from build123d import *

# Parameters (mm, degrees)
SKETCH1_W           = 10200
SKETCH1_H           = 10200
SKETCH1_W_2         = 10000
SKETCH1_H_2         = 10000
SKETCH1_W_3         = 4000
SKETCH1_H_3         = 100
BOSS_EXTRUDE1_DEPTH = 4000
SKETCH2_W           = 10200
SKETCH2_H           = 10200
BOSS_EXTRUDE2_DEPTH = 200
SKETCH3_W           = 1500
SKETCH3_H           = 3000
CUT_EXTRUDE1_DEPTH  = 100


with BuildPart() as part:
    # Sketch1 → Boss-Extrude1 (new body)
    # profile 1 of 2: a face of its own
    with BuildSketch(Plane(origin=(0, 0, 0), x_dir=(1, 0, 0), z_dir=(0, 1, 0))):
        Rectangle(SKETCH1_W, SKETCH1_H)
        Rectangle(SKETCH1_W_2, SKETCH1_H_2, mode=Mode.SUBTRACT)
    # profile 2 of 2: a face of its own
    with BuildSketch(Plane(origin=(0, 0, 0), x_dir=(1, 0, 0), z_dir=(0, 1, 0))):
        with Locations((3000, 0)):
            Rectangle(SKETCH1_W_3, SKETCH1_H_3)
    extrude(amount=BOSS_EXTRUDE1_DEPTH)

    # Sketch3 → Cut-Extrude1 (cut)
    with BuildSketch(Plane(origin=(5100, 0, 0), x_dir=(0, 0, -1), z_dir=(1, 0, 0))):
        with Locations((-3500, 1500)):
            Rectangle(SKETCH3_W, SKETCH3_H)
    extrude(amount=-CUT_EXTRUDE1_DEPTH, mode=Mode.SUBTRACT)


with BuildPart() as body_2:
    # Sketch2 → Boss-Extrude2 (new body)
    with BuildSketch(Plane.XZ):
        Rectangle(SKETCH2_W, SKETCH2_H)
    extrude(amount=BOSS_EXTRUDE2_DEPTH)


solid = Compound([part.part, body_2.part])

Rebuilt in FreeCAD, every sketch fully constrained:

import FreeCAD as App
import Part
import Sketcher
from FreeCAD import Vector
Q = App.Units.Quantity


def add_polygon(sketch, points):
    """Adds a closed chain of lines whose ends are joined by coincident constraints."""
    first, n = sketch.GeometryCount, len(points)
    for a, b in zip(points, points[1:] + points[:1]):
        sketch.addGeometry(Part.LineSegment(App.Vector(*a, 0), App.Vector(*b, 0)), False)
    for i in range(n):
        sketch.addConstraint(Sketcher.Constraint("Coincident", first + i, 2, first + (i + 1) % n, 1))

doc = App.newDocument("Part")
body = doc.addObject("PartDesign::Body", "Body")

# Sketch on XZ plane
sketch1 = body.newObject("Sketcher::SketchObject", "Sketch")
sketch1.AttachmentSupport = (doc.getObject("XZ_Plane"), [""])
sketch1.MapMode = "FlatFace"
add_polygon(sketch1, [(-5100, -5100), (-5100, 5100), (5100, 5100), (5100, -5100)])  # lines 0-3
add_polygon(sketch1, [(5000, 5000), (-5000, 5000), (-5000, -5000), (5000, -5000), (5000, -50), (1000, -50), (1000, 50), (5000, 50)])  # lines 4-11
sketch1.addConstraint(Sketcher.Constraint("Vertical", 0))
sketch1.addConstraint(Sketcher.Constraint("Horizontal", 1))
sketch1.addConstraint(Sketcher.Constraint("Vertical", 2))
sketch1.addConstraint(Sketcher.Constraint("Horizontal", 3))
sketch1.addConstraint(Sketcher.Constraint("Horizontal", 4))
sketch1.addConstraint(Sketcher.Constraint("Vertical", 5))
sketch1.addConstraint(Sketcher.Constraint("Horizontal", 6))
sketch1.addConstraint(Sketcher.Constraint("Vertical", 7))
sketch1.addConstraint(Sketcher.Constraint("Horizontal", 8))
sketch1.addConstraint(Sketcher.Constraint("Vertical", 9))
sketch1.addConstraint(Sketcher.Constraint("Horizontal", 10))
sketch1.addConstraint(Sketcher.Constraint("Vertical", 11))
sketch1.addConstraint(Sketcher.Constraint("Symmetric", 0, 2, 2, 2, -1, 1))
sketch1.addConstraint(Sketcher.Constraint("Symmetric", 4, 2, 6, 2, -1, 1))
sketch1.addConstraint(Sketcher.Constraint("Symmetric", 7, 2, 10, 2, -1))
sketch1.addConstraint(Sketcher.Constraint("Equal", 3, 0))
sketch1.addConstraint(Sketcher.Constraint("Equal", 6, 5))
sketch1.addConstraint(Sketcher.Constraint("DistanceX", 1, 1, 1, 2, Q("10200 mm")))
sketch1.addConstraint(Sketcher.Constraint("DistanceX", 4, 2, 4, 1, Q("10000 mm")))
sketch1.addConstraint(Sketcher.Constraint("DistanceX", 8, 2, 8, 1, Q("4000 mm")))
sketch1.addConstraint(Sketcher.Constraint("DistanceY", 7, 1, 7, 2, Q("4950 mm")))
pad1 = body.newObject("PartDesign::Pad", "Pad")
pad1.Profile = sketch1
pad1.Length = 4000
pad1.Reversed = True

# Sketch on YZ plane
sketch2 = body.newObject("Sketcher::SketchObject", "Sketch001")
sketch2.AttachmentSupport = (doc.getObject("YZ_Plane"), [""])
sketch2.MapMode = "FlatFace"
sketch2.AttachmentOffset = App.Placement(Vector(0, 0, 5100), App.Rotation())
add_polygon(sketch2, [(3000, 4250), (0, 4250), (0, 2750), (3000, 2750)])  # lines 0-3
sketch2.addConstraint(Sketcher.Constraint("Horizontal", 0))
sketch2.addConstraint(Sketcher.Constraint("Vertical", 1))
sketch2.addConstraint(Sketcher.Constraint("Horizontal", 2))
sketch2.addConstraint(Sketcher.Constraint("Vertical", 3))
sketch2.addConstraint(Sketcher.Constraint("PointOnObject", 0, 2, -2))
sketch2.addConstraint(Sketcher.Constraint("DistanceX", 0, 2, 0, 1, Q("3000 mm")))
sketch2.addConstraint(Sketcher.Constraint("DistanceY", 1, 2, 1, 1, Q("1500 mm")))
sketch2.addConstraint(Sketcher.Constraint("DistanceY", -1, 1, 0, 2, Q("4250 mm")))
pocket1 = body.newObject("PartDesign::Pocket", "Pocket")
pocket1.Profile = sketch2
pocket1.Length = 100
body2 = doc.addObject("PartDesign::Body", "Body001")

# Sketch on XZ plane
sketch3 = body2.newObject("Sketcher::SketchObject", "Sketch002")
sketch3.AttachmentSupport = (doc.getObject("XZ_Plane001"), [""])
sketch3.MapMode = "FlatFace"
add_polygon(sketch3, [(-5100, 5100), (-5100, -5100), (5100, -5100), (5100, 5100)])  # lines 0-3
sketch3.addConstraint(Sketcher.Constraint("Vertical", 0))
sketch3.addConstraint(Sketcher.Constraint("Horizontal", 1))
sketch3.addConstraint(Sketcher.Constraint("Vertical", 2))
sketch3.addConstraint(Sketcher.Constraint("Horizontal", 3))
sketch3.addConstraint(Sketcher.Constraint("Symmetric", 0, 2, 2, 2, -1, 1))
sketch3.addConstraint(Sketcher.Constraint("Equal", 3, 0))
sketch3.addConstraint(Sketcher.Constraint("DistanceX", 1, 1, 1, 2, Q("10200 mm")))
pad2 = body2.newObject("PartDesign::Pad", "Pad001")
pad2.Profile = sketch3
pad2.Length = 200

doc.recompute()
